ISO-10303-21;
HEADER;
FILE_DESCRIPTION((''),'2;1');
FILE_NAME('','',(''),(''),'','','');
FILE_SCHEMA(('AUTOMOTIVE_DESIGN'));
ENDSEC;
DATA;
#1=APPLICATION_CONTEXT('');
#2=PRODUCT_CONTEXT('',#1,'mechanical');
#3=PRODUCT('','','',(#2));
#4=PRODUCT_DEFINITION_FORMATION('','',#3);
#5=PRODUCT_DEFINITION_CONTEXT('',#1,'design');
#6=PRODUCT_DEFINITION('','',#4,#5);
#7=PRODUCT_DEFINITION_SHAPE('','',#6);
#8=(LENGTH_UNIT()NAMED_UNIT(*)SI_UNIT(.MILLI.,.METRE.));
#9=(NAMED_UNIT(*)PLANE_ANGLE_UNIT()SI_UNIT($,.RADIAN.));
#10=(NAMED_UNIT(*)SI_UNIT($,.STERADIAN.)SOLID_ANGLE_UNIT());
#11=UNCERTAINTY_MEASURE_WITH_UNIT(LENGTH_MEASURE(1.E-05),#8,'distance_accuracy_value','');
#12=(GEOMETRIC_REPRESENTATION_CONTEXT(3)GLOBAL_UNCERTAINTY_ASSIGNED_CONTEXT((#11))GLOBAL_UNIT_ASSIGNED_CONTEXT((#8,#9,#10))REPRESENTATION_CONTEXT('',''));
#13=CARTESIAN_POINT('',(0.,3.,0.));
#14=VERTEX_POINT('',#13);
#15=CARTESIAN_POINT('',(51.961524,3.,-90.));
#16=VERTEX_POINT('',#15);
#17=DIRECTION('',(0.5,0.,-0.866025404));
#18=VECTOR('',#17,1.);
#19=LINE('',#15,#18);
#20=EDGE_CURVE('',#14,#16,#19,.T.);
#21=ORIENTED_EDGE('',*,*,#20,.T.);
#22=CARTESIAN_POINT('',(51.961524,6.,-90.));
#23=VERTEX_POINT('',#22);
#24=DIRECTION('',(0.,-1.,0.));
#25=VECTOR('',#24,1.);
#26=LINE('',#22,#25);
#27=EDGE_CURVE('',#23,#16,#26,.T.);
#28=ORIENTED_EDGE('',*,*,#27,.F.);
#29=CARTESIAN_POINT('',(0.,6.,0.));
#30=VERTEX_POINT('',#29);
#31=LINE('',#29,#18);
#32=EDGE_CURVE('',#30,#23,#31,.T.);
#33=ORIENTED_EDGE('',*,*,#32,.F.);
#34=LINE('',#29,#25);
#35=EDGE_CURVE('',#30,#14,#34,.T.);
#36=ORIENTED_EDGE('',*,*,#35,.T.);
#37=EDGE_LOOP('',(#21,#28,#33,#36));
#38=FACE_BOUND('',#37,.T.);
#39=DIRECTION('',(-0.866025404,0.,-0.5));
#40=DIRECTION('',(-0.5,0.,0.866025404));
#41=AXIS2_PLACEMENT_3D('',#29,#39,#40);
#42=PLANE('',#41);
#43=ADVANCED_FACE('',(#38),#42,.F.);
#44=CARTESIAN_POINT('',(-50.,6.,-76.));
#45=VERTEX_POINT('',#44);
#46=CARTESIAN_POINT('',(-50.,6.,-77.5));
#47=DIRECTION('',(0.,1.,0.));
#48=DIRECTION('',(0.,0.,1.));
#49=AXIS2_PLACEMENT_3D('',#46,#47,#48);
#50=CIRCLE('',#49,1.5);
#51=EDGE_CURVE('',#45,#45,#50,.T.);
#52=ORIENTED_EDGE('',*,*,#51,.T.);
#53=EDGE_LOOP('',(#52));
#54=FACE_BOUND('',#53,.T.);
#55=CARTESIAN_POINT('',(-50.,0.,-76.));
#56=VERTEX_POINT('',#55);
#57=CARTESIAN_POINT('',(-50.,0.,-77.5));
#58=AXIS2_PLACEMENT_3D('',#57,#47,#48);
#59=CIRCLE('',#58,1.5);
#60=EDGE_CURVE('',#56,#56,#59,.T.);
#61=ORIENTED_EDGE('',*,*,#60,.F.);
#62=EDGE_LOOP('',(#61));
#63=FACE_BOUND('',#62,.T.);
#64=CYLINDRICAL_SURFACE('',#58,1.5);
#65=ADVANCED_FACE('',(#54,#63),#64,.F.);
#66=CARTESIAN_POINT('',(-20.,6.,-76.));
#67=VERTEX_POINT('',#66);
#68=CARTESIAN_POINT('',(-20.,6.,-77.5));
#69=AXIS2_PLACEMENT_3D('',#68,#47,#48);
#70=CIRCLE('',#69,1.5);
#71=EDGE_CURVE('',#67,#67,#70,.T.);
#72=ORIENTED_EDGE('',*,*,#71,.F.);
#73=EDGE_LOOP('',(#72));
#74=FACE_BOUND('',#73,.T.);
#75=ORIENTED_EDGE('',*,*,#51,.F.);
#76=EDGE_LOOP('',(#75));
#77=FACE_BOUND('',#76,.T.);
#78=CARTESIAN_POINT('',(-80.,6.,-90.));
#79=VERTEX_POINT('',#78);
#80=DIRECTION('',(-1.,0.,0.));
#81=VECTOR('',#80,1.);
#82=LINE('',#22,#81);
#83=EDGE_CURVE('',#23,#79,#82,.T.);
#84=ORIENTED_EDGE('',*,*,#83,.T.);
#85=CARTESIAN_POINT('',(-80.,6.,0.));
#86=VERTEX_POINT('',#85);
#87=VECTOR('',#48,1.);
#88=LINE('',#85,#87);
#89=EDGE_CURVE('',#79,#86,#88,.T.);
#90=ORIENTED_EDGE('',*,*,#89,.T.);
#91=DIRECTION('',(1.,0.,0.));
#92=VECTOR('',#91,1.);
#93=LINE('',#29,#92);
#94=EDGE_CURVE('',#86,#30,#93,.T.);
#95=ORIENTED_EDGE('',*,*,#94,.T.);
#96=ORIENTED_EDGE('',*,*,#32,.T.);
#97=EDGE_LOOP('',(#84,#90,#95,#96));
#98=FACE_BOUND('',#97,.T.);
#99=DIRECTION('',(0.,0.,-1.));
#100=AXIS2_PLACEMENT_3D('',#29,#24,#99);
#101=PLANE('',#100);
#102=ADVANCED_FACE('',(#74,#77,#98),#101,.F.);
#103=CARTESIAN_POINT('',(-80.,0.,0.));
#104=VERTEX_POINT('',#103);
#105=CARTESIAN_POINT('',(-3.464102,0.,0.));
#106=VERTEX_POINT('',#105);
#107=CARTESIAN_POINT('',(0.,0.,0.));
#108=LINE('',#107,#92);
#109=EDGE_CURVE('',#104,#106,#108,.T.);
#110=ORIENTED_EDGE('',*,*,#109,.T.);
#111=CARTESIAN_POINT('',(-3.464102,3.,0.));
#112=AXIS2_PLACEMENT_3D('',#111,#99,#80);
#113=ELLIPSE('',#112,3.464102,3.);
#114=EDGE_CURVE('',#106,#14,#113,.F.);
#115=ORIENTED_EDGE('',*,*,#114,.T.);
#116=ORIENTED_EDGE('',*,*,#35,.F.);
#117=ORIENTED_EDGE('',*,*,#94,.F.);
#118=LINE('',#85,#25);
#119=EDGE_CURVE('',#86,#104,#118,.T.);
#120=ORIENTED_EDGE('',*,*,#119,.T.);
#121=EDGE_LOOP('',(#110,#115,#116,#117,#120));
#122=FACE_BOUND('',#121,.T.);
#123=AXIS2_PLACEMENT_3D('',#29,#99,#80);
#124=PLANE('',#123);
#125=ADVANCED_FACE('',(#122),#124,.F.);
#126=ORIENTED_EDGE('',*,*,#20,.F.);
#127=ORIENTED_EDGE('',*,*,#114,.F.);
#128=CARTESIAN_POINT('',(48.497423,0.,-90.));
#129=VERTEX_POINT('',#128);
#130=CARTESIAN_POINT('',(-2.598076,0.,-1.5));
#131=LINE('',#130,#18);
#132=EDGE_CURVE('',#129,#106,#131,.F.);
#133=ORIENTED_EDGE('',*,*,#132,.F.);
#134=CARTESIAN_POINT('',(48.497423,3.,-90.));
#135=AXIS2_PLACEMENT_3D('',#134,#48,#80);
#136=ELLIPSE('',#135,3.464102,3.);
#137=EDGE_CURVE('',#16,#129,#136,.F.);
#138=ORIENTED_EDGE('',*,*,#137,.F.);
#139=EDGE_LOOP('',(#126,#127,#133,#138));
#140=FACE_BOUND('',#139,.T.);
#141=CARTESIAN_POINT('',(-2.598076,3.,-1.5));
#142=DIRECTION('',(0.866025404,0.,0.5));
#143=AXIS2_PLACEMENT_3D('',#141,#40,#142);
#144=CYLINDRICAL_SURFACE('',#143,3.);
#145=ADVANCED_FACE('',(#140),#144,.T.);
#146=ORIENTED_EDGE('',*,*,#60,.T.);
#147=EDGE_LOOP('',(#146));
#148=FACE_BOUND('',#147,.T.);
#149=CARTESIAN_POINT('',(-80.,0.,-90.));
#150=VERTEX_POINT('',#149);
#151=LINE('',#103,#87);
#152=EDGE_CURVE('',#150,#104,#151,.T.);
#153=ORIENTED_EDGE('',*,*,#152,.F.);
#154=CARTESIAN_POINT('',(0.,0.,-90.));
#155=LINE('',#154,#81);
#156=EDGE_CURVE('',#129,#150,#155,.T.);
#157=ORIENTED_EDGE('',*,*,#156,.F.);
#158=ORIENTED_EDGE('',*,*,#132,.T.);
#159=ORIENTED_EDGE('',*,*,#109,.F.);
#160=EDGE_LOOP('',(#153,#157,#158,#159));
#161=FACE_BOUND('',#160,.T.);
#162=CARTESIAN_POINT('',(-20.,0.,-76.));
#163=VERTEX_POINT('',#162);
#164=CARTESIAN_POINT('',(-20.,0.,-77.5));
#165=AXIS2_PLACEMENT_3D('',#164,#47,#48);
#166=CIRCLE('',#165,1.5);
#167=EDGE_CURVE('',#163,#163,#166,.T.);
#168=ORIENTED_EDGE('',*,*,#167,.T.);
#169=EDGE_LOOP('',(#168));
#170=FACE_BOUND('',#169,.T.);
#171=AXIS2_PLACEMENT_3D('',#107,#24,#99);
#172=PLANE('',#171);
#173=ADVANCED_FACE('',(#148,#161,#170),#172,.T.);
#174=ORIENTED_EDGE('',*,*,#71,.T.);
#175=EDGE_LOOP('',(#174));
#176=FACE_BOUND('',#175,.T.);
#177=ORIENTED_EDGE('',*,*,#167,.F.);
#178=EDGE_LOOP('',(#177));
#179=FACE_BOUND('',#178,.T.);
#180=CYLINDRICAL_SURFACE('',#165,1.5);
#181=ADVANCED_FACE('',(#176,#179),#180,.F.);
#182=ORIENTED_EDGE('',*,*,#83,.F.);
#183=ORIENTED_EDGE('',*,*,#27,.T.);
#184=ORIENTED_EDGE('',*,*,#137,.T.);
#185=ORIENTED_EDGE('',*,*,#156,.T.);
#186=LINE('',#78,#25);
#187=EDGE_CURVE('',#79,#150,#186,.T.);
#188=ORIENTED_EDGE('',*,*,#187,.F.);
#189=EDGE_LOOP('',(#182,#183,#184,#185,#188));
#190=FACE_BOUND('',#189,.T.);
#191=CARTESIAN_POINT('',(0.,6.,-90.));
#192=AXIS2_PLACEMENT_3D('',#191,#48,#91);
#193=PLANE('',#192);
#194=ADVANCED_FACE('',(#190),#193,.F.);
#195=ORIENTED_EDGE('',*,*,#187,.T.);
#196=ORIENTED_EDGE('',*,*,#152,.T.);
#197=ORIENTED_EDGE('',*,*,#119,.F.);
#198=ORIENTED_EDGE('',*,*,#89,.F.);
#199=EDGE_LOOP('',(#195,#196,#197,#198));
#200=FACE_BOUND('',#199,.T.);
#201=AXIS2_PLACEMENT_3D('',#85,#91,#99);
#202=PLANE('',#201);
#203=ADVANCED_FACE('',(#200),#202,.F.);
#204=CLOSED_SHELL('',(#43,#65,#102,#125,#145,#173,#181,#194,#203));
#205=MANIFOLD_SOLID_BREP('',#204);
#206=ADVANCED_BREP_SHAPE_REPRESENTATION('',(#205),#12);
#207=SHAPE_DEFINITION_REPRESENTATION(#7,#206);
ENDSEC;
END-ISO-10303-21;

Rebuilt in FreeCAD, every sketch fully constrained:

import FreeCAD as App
import Part
import Sketcher
Q = App.Units.Quantity


def edges_at(feature, points):
    """Names of the edges that pass closest to the given points."""
    edges = feature.Shape.Edges
    near = lambda p: min(range(len(edges)), key=lambda i: edges[i].distToShape(Part.Vertex(*p))[0])
    return sorted({f"Edge{near(p) + 1}" for p in points})


def add_polygon(sketch, points):
    """Adds a closed chain of lines whose ends are joined by coincident constraints."""
    first, n = sketch.GeometryCount, len(points)
    for a, b in zip(points, points[1:] + points[:1]):
        sketch.addGeometry(Part.LineSegment(App.Vector(*a, 0), App.Vector(*b, 0)), False)
    for i in range(n):
        sketch.addConstraint(Sketcher.Constraint("Coincident", first + i, 2, first + (i + 1) % n, 1))

doc = App.newDocument("Part")
body = doc.addObject("PartDesign::Body", "Body")

sketch1 = body.newObject("Sketcher::SketchObject", "Sketch")
sketch1.AttachmentSupport = (doc.getObject("XZ_Plane"), [""])
sketch1.MapMode = "FlatFace"
add_polygon(sketch1, [(0, 0), (52, -90), (-80, -90), (-80, 0)])
sketch1.addConstraint([
    Sketcher.Constraint("Horizontal", 1),
    Sketcher.Constraint("Vertical", 2),
    Sketcher.Constraint("Horizontal", 3),
    Sketcher.Constraint("Coincident", 3, 2, -1, 1),
    Sketcher.Constraint("DistanceX", 3, 1, 3, 2, Q("80 mm")),
    Sketcher.Constraint("DistanceY", 2, 1, 2, 2, Q("90 mm")),
    Sketcher.Constraint("Angle", 0, Q("-60 deg")),
])
pad1 = body.newObject("PartDesign::Pad", "Pad")
pad1.Profile = sketch1
pad1.Length = 6
pad1.Reversed = True
doc.recompute()

fillet = body.newObject("PartDesign::Fillet", "Fillet")
fillet.Base = (pad1, edges_at(pad1, [(25.981, 0, -45)]))
fillet.Radius = 3

sketch2 = body.newObject("Sketcher::SketchObject", "Sketch001")
sketch2.AttachmentSupport = (doc.getObject("XZ_Plane"), [""])
sketch2.MapMode = "FlatFace"
sketch2.AttachmentOffset = App.Placement(App.Vector(0, 0, -6), App.Rotation())
sketch2.addGeometry([
    Part.Circle(App.Vector(-50, -77.5, 0), App.Vector(0, 0, 1), 1.5),
    Part.Circle(App.Vector(-20, -77.5, 0), App.Vector(0, 0, 1), 1.5),
], False)
sketch2.addConstraint([
    Sketcher.Constraint("Equal", 0, 1),
    Sketcher.Constraint("Horizontal", 0, 3, 1, 3),
    Sketcher.Constraint("Diameter", 0, Q("3 mm")),
    Sketcher.Constraint("DistanceX", 0, 3, -1, 1, Q("50 mm")),
    Sketcher.Constraint("DistanceX", 1, 3, -1, 1, Q("20 mm")),
    Sketcher.Constraint("DistanceY", 0, 3, -1, 1, Q("77.5 mm")),
])
pocket1 = body.newObject("PartDesign::Pocket", "Pocket")
pocket1.Profile = sketch2
pocket1.Type = "ThroughAll"
pocket1.Reversed = True

doc.recompute()
